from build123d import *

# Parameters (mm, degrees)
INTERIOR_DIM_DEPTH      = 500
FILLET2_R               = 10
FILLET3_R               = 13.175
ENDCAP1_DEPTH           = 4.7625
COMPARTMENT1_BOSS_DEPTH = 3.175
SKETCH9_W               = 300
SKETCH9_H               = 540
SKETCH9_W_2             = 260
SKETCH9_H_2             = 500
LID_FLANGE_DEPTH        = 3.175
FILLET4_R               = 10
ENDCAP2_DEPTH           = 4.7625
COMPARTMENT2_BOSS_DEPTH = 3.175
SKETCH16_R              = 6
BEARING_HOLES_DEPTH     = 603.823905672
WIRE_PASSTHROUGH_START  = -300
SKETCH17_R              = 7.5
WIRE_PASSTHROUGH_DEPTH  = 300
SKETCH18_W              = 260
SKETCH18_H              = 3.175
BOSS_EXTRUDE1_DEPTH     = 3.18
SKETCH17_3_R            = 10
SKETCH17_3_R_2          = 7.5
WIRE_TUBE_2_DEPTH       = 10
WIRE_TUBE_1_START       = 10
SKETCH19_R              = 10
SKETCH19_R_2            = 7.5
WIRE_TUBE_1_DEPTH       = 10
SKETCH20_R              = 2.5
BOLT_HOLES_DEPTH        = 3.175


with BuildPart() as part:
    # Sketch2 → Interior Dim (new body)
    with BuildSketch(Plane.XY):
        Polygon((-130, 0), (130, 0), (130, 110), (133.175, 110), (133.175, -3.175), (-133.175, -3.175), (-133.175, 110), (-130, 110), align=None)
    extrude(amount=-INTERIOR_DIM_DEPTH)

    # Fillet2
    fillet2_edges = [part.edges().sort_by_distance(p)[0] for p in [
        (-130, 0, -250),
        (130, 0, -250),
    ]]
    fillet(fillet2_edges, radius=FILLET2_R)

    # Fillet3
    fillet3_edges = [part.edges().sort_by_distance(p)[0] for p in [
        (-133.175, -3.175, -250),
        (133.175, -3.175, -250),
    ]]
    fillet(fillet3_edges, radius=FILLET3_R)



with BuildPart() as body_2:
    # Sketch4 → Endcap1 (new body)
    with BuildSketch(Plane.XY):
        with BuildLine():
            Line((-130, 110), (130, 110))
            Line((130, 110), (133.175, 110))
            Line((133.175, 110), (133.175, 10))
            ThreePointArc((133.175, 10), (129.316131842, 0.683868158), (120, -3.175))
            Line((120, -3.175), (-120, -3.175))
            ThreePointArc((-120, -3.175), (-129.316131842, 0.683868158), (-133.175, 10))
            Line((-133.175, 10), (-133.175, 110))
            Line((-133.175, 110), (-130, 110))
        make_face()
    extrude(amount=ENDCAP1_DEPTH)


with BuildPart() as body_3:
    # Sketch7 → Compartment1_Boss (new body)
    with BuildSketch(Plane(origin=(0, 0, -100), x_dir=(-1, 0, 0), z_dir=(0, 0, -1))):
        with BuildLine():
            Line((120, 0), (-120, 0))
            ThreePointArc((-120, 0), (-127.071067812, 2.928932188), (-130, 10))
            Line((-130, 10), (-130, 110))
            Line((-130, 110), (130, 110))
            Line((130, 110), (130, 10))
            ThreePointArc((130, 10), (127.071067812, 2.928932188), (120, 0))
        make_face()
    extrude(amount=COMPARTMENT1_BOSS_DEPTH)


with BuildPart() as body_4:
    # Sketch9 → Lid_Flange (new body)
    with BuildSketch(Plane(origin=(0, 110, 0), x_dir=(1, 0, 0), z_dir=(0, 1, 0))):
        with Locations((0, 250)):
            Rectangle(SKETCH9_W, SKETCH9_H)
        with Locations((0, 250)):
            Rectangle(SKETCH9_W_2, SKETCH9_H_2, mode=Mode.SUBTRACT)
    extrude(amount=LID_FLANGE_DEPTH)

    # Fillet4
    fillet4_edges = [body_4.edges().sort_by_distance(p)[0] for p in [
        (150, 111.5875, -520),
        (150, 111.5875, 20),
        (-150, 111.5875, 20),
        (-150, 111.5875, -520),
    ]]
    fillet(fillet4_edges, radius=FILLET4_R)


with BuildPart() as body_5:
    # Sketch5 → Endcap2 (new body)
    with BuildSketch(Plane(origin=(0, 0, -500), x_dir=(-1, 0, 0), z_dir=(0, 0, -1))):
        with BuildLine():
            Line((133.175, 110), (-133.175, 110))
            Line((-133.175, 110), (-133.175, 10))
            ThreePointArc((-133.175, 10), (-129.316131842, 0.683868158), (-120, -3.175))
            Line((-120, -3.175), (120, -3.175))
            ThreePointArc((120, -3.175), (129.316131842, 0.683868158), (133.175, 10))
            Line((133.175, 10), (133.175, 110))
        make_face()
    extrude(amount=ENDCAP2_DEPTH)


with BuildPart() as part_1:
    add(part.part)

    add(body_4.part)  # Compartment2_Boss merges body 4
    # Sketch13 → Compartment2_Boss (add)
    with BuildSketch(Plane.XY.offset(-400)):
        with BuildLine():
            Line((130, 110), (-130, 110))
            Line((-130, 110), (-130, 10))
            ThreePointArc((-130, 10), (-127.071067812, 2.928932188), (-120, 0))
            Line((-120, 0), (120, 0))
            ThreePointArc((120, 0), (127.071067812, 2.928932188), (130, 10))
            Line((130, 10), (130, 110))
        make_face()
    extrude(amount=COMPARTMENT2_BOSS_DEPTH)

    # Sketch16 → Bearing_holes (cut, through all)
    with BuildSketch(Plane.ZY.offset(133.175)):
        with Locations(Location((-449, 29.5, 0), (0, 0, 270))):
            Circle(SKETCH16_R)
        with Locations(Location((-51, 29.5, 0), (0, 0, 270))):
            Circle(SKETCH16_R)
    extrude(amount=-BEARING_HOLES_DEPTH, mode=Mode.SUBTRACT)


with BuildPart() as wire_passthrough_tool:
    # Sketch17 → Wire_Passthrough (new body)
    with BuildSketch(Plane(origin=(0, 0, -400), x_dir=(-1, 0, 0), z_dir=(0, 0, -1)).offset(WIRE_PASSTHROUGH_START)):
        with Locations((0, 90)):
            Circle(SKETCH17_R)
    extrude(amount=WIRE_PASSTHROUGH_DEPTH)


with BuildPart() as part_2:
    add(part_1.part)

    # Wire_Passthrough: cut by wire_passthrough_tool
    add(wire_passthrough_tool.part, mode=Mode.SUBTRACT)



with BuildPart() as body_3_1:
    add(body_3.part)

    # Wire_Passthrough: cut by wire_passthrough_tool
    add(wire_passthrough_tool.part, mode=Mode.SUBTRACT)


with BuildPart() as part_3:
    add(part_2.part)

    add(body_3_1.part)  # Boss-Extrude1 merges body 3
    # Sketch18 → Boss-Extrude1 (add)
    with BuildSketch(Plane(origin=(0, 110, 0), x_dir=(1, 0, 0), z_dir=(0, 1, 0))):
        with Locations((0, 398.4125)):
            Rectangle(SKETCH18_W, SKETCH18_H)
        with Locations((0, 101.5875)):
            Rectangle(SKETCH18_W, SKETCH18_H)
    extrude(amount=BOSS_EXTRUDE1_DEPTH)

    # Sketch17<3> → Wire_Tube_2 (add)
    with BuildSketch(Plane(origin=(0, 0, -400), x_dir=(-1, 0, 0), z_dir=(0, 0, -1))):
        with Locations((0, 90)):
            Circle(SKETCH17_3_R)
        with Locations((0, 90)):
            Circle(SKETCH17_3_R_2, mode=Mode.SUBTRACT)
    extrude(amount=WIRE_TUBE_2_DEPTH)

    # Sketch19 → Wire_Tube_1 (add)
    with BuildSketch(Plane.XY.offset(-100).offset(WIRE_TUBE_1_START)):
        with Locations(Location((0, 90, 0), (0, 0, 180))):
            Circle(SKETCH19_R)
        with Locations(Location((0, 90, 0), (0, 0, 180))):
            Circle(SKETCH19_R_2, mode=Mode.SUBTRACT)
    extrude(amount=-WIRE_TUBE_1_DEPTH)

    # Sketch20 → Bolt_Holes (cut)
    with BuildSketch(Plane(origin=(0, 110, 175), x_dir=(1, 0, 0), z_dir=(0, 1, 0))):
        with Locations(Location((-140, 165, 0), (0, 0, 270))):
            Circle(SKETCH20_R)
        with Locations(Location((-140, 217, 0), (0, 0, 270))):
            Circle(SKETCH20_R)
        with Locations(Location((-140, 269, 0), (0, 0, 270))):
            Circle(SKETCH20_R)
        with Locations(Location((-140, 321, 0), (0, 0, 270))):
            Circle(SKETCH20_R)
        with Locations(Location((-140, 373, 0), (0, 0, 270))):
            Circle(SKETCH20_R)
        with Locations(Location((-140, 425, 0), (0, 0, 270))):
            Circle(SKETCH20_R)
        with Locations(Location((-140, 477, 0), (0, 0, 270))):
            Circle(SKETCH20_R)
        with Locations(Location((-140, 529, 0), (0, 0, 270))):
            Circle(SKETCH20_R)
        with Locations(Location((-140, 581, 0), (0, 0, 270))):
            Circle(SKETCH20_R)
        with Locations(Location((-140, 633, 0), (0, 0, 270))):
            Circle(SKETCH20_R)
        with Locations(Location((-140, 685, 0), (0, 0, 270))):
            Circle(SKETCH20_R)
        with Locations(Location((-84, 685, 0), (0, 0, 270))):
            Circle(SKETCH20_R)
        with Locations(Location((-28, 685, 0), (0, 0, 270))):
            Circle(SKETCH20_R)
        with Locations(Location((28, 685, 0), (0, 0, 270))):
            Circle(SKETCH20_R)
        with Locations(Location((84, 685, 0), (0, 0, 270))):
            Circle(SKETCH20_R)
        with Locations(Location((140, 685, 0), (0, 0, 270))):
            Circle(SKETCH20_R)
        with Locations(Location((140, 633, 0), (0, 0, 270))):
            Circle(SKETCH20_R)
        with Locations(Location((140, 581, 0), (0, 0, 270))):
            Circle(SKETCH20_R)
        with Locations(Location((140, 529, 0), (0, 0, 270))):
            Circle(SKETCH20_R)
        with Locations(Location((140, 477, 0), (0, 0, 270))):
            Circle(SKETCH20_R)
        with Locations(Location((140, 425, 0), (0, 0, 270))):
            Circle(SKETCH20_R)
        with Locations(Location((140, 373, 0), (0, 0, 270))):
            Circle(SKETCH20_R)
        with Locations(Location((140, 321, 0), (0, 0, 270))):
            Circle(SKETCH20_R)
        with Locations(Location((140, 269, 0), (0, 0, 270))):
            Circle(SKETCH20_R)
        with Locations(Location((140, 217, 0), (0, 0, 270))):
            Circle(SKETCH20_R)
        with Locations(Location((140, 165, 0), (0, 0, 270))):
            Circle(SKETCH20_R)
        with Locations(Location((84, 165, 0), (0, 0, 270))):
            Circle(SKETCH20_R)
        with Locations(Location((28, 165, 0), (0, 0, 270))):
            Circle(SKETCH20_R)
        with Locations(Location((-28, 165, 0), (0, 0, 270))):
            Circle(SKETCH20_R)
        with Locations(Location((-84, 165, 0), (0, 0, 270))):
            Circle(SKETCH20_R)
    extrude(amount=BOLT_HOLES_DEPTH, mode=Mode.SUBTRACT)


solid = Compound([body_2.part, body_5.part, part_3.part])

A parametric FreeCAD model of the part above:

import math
import FreeCAD as App
import Part
import Sketcher


def edges_at(feature, points):
    """Names of the edges that pass closest to the given points."""
    edges = feature.Shape.Edges
    near = lambda p: min(range(len(edges)), key=lambda i: edges[i].distToShape(Part.Vertex(*p))[0])
    return sorted({f"Edge{near(p) + 1}" for p in points})


def add_polygon(sketch, points):
    """Adds a closed chain of lines whose ends are joined by coincident constraints."""
    first, n = sketch.GeometryCount, len(points)
    for a, b in zip(points, points[1:] + points[:1]):
        sketch.addGeometry(Part.LineSegment(App.Vector(*a, 0), App.Vector(*b, 0)), False)
    for i in range(n):
        sketch.addConstraint(Sketcher.Constraint("Coincident", first + i, 2, first + (i + 1) % n, 1))

doc = App.newDocument("Part")
body = doc.addObject("PartDesign::Body", "Body")

# Sketch on XY plane
sketch1 = doc.addObject("Sketcher::SketchObject", "Sketch")
body.addObject(sketch1)
sketch1.AttachmentSupport = (doc.XY_Plane, [""])
sketch1.MapMode = "FlatFace"
add_polygon(sketch1, [(130, 0), (-130, 0), (-130, 110), (-133.175, 110), (-133.175, -3.175), (133.175, -3.175), (133.175, 110), (130, 110)])  # lines 0-7
sketch1.addConstraint([
    Sketcher.Constraint("Horizontal", 0),
    Sketcher.Constraint("Vertical", 1),
    Sketcher.Constraint("Horizontal", 2),
    Sketcher.Constraint("Vertical", 3),
    Sketcher.Constraint("Horizontal", 4),
    Sketcher.Constraint("Vertical", 5),
    Sketcher.Constraint("Horizontal", 6),
    Sketcher.Constraint("Vertical", 7),
    Sketcher.Constraint("Symmetric", 0, 2, 7, 2, -1, 1),
    Sketcher.Constraint("Symmetric", 2, 2, 5, 2, -2),
    Sketcher.Constraint("DistanceX", 0, 2, 0, 1, 260.0),
    Sketcher.Constraint("DistanceY", 1, 1, 1, 2, 110.0),
    Sketcher.Constraint("DistanceX", 4, 1, 4, 2, 266.35),
    Sketcher.Constraint("DistanceY", 3, 2, 3, 1, 113.175),
])
pad1 = doc.addObject("PartDesign::Pad", "Pad")
body.addObject(pad1)
pad1.Profile = sketch1
pad1.Length = 500
pad1.Reversed = True
doc.recompute()

fillet = doc.addObject("PartDesign::Fillet", "Fillet")
body.addObject(fillet)
fillet.Base = (pad1, edges_at(pad1, [(-130, 0, -250), (130, 0, -250)]))
fillet.Radius = 10
doc.recompute()

fillet2 = doc.addObject("PartDesign::Fillet", "Fillet001")
body.addObject(fillet2)
fillet2.Base = (fillet, edges_at(fillet, [(-133.175, -3.175, -250), (133.175, -3.175, -250)]))
fillet2.Radius = 13.175
body2 = doc.addObject("PartDesign::Body", "Body001")

# Sketch on XY plane
sketch2 = doc.addObject("Sketcher::SketchObject", "Sketch001")
body2.addObject(sketch2)
sketch2.AttachmentSupport = (doc.getObject("XY_Plane001"), [""])
sketch2.MapMode = "FlatFace"
sketch2.addGeometry([
    Part.LineSegment(App.Vector(133.175, 10, 0), App.Vector(133.175, 110, 0)),  # 0
    Part.LineSegment(App.Vector(133.175, 110, 0), App.Vector(-133.175, 110, 0)),  # 1
    Part.LineSegment(App.Vector(-133.175, 110, 0), App.Vector(-133.175, 10, 0)),  # 2
    Part.ArcOfCircle(Part.Circle(App.Vector(-120, 10, 0), App.Vector(0, 0, 1), 13.175), math.radians(180), math.radians(270)),  # 3
    Part.LineSegment(App.Vector(-120, -3.175, 0), App.Vector(120, -3.175, 0)),  # 4
    Part.ArcOfCircle(Part.Circle(App.Vector(120, 10, 0), App.Vector(0, 0, 1), 13.175), math.radians(-90), math.radians(0)),  # 5
], False)
sketch2.addConstraint([
    Sketcher.Constraint("Coincident", 0, 2, 1, 1),
    Sketcher.Constraint("Coincident", 1, 2, 2, 1),
    Sketcher.Constraint("Tangent", 2, 2, 3, 1),
    Sketcher.Constraint("Tangent", 3, 2, 4, 1),
    Sketcher.Constraint("Tangent", 4, 2, 5, 1),
    Sketcher.Constraint("Tangent", 5, 2, 0, 1),
    Sketcher.Constraint("Vertical", 0),
    Sketcher.Constraint("Horizontal", 1),
    Sketcher.Constraint("Vertical", 2),
    Sketcher.Constraint("Horizontal", 4),
    Sketcher.Constraint("Equal", 3, 5),
    Sketcher.Constraint("DistanceX", 4, 1, 4, 2, 240.0),
    Sketcher.Constraint("DistanceY", 0, 1, 0, 2, 100.0),
    Sketcher.Constraint("DistanceX", 3, 3, -1, 1, 120.0),
    Sketcher.Constraint("DistanceY", -1, 1, 3, 3, 10.0),
    Sketcher.Constraint("Radius", 3, 13.175),
])
pad2 = doc.addObject("PartDesign::Pad", "Pad001")
body2.addObject(pad2)
pad2.Profile = sketch2
pad2.Length = 4.7625
body3 = doc.addObject("PartDesign::Body", "Body002")

# Sketch on XY plane
sketch3 = doc.addObject("Sketcher::SketchObject", "Sketch002")
body3.addObject(sketch3)
sketch3.AttachmentSupport = (doc.getObject("XY_Plane002"), [""])
sketch3.MapMode = "FlatFace"
sketch3.AttachmentOffset = App.Placement(App.Vector(0, 0, -100), App.Rotation())
sketch3.addGeometry([
    Part.LineSegment(App.Vector(120, 0, 0), App.Vector(-120, 0, 0)),  # 0
    Part.ArcOfCircle(Part.Circle(App.Vector(-120, 10, 0), App.Vector(0, 0, 1), 10), math.radians(180), math.radians(270)),  # 1
    Part.LineSegment(App.Vector(-130, 10, 0), App.Vector(-130, 110, 0)),  # 2
    Part.LineSegment(App.Vector(-130, 110, 0), App.Vector(130, 110, 0)),  # 3
    Part.LineSegment(App.Vector(130, 110, 0), App.Vector(130, 10, 0)),  # 4
    Part.ArcOfCircle(Part.Circle(App.Vector(120, 10, 0), App.Vector(0, 0, 1), 10), math.radians(-90), math.radians(0)),  # 5
], False)
sketch3.addConstraint([
    Sketcher.Constraint("Tangent", 0, 2, 1, 2),
    Sketcher.Constraint("Tangent", 1, 1, 2, 1),
    Sketcher.Constraint("Coincident", 2, 2, 3, 1),
    Sketcher.Constraint("Coincident", 3, 2, 4, 1),
    Sketcher.Constraint("Tangent", 4, 2, 5, 2),
    Sketcher.Constraint("Tangent", 5, 1, 0, 1),
    Sketcher.Constraint("Horizontal", 0),
    Sketcher.Constraint("Vertical", 2),
    Sketcher.Constraint("Horizontal", 3),
    Sketcher.Constraint("Vertical", 4),
    Sketcher.Constraint("Equal", 1, 5),
    Sketcher.Constraint("Symmetric", 0, 2, 5, 1, -1, 1),
    Sketcher.Constraint("Radius", 1, 10.0),
    Sketcher.Constraint("DistanceX", 0, 2, 0, 1, 240.0),
    Sketcher.Constraint("DistanceY", 2, 1, 2, 2, 100.0),
])
pad3 = doc.addObject("PartDesign::Pad", "Pad002")
body3.addObject(pad3)
pad3.Profile = sketch3
pad3.Length = 3.175
pad3.Reversed = True
body4 = doc.addObject("PartDesign::Body", "Body003")

# Sketch on XZ plane
sketch4 = doc.addObject("Sketcher::SketchObject", "Sketch003")
body4.addObject(sketch4)
sketch4.AttachmentSupport = (doc.getObject("XZ_Plane003"), [""])
sketch4.MapMode = "FlatFace"
sketch4.AttachmentOffset = App.Placement(App.Vector(0, 0, -110), App.Rotation())
add_polygon(sketch4, [(-150, -520), (-150, 20), (150, 20), (150, -520)])  # lines 0-3
add_polygon(sketch4, [(130, 0), (-130, 0), (-130, -500), (130, -500)])  # lines 4-7
sketch4.addConstraint([
    Sketcher.Constraint("Vertical", 0),
    Sketcher.Constraint("Horizontal", 1),
    Sketcher.Constraint("Vertical", 2),
    Sketcher.Constraint("Horizontal", 3),
    Sketcher.Constraint("Horizontal", 4),
    Sketcher.Constraint("Vertical", 5),
    Sketcher.Constraint("Horizontal", 6),
    Sketcher.Constraint("Vertical", 7),
    Sketcher.Constraint("Symmetric", 4, 2, 7, 2, -1, 1),
    Sketcher.Constraint("DistanceX", 1, 1, 1, 2, 300.0),
    Sketcher.Constraint("DistanceX", 4, 2, 4, 1, 260.0),
    Sketcher.Constraint("DistanceY", 0, 1, 0, 2, 540.0),
    Sketcher.Constraint("DistanceY", 5, 2, 5, 1, 500.0),
    Sketcher.Constraint("DistanceX", 0, 2, -1, 1, 150.0),
    Sketcher.Constraint("DistanceY", -1, 1, 0, 2, 20.0),
])
pad4 = doc.addObject("PartDesign::Pad", "Pad003")
body4.addObject(pad4)
pad4.Profile = sketch4
pad4.Length = 3.175
pad4.Reversed = True
doc.recompute()

fillet3 = doc.addObject("PartDesign::Fillet", "Fillet002")
body4.addObject(fillet3)
fillet3.Base = (pad4, edges_at(pad4, [
    (150, 111.588, -520),
    (150, 111.588, 20),
    (-150, 111.588, 20),
    (-150, 111.588, -520),
]))
fillet3.Radius = 10
body5 = doc.addObject("PartDesign::Body", "Body004")

# Sketch on XY plane
sketch5 = doc.addObject("Sketcher::SketchObject", "Sketch004")
body5.addObject(sketch5)
sketch5.AttachmentSupport = (doc.getObject("XY_Plane004"), [""])
sketch5.MapMode = "FlatFace"
sketch5.AttachmentOffset = App.Placement(App.Vector(0, 0, -500), App.Rotation())
sketch5.addGeometry([
    Part.LineSegment(App.Vector(-133.175, 110, 0), App.Vector(133.175, 110, 0)),  # 0
    Part.LineSegment(App.Vector(133.175, 110, 0), App.Vector(133.175, 10, 0)),  # 1
    Part.ArcOfCircle(Part.Circle(App.Vector(120, 10, 0), App.Vector(0, 0, 1), 13.175), math.radians(-90), math.radians(0)),  # 2
    Part.LineSegment(App.Vector(120, -3.175, 0), App.Vector(-120, -3.175, 0)),  # 3
    Part.ArcOfCircle(Part.Circle(App.Vector(-120, 10, 0), App.Vector(0, 0, 1), 13.175), math.radians(180), math.radians(270)),  # 4
    Part.LineSegment(App.Vector(-133.175, 10, 0), App.Vector(-133.175, 110, 0)),  # 5
], False)
sketch5.addConstraint([
    Sketcher.Constraint("Coincident", 0, 2, 1, 1),
    Sketcher.Constraint("Tangent", 1, 2, 2, 2),
    Sketcher.Constraint("Tangent", 2, 1, 3, 1),
    Sketcher.Constraint("Tangent", 3, 2, 4, 2),
    Sketcher.Constraint("Tangent", 4, 1, 5, 1),
    Sketcher.Constraint("Coincident", 5, 2, 0, 1),
    Sketcher.Constraint("Horizontal", 0),
    Sketcher.Constraint("Vertical", 1),
    Sketcher.Constraint("Horizontal", 3),
    Sketcher.Constraint("Vertical", 5),
    Sketcher.Constraint("Equal", 2, 4),
    Sketcher.Constraint("DistanceX", 3, 2, 3, 1, 240.0),
    Sketcher.Constraint("DistanceY", 1, 2, 1, 1, 100.0),
    Sketcher.Constraint("DistanceX", -1, 1, 2, 3, 120.0),
    Sketcher.Constraint("DistanceY", -1, 1, 2, 3, 10.0),
    Sketcher.Constraint("Radius", 2, 13.175),
])
pad5 = doc.addObject("PartDesign::Pad", "Pad004")
body5.addObject(pad5)
pad5.Profile = sketch5
pad5.Length = 4.7625
pad5.Reversed = True
doc.recompute()

boolean = doc.addObject("PartDesign::Boolean", "Boolean")
body.addObject(boolean)
boolean.Type = "Fuse"
boolean.addObjects([body4])

# Sketch on XY plane
sketch6 = doc.addObject("Sketcher::SketchObject", "Sketch005")
body.addObject(sketch6)
sketch6.AttachmentSupport = (doc.XY_Plane, [""])
sketch6.MapMode = "FlatFace"
sketch6.AttachmentOffset = App.Placement(App.Vector(0, 0, -400), App.Rotation())
sketch6.addGeometry([
    Part.LineSegment(App.Vector(130, 110, 0), App.Vector(-130, 110, 0)),  # 0
    Part.LineSegment(App.Vector(-130, 110, 0), App.Vector(-130, 10, 0)),  # 1
    Part.ArcOfCircle(Part.Circle(App.Vector(-120, 10, 0), App.Vector(0, 0, 1), 10), math.radians(180), math.radians(270)),  # 2
    Part.LineSegment(App.Vector(-120, 0, 0), App.Vector(120, 0, 0)),  # 3
    Part.ArcOfCircle(Part.Circle(App.Vector(120, 10, 0), App.Vector(0, 0, 1), 10), math.radians(-90), math.radians(0)),  # 4
    Part.LineSegment(App.Vector(130, 10, 0), App.Vector(130, 110, 0)),  # 5
], False)
sketch6.addConstraint([
    Sketcher.Constraint("Coincident", 0, 2, 1, 1),
    Sketcher.Constraint("Tangent", 1, 2, 2, 1),
    Sketcher.Constraint("Tangent", 2, 2, 3, 1),
    Sketcher.Constraint("Tangent", 3, 2, 4, 1),
    Sketcher.Constraint("Tangent", 4, 2, 5, 1),
    Sketcher.Constraint("Coincident", 5, 2, 0, 1),
    Sketcher.Constraint("Horizontal", 0),
    Sketcher.Constraint("Vertical", 1),
    Sketcher.Constraint("Horizontal", 3),
    Sketcher.Constraint("Vertical", 5),
    Sketcher.Constraint("Equal", 2, 4),
    Sketcher.Constraint("Symmetric", 2, 2, 3, 2, -1, 1),
    Sketcher.Constraint("Radius", 2, 10.0),
    Sketcher.Constraint("DistanceX", 0, 2, 0, 1, 260.0),
    Sketcher.Constraint("DistanceY", 1, 2, 1, 1, 100.0),
])
pad6 = doc.addObject("PartDesign::Pad", "Pad005")
body.addObject(pad6)
pad6.Profile = sketch6
pad6.Length = 3.175

# Sketch on YZ plane
sketch7 = doc.addObject("Sketcher::SketchObject", "Sketch006")
body.addObject(sketch7)
sketch7.AttachmentSupport = (doc.YZ_Plane, [""])
sketch7.MapMode = "FlatFace"
sketch7.AttachmentOffset = App.Placement(App.Vector(0, 0, -133.175), App.Rotation())
sketch7.addGeometry([
    Part.Circle(App.Vector(29.5, -449, 0), App.Vector(0, 0, 1), 6),
    Part.Circle(App.Vector(29.5, -51, 0), App.Vector(0, 0, 1), 6),
], False)
sketch7.addConstraint([
    Sketcher.Constraint("Equal", 0, 1),
    Sketcher.Constraint("Vertical", 0, 3, 1, 3),
    Sketcher.Constraint("Diameter", 0, 12.0),
    Sketcher.Constraint("DistanceY", 0, 3, -1, 1, 449.0),
    Sketcher.Constraint("DistanceY", 1, 3, -1, 1, 51.0),
    Sketcher.Constraint("DistanceX", -1, 1, 0, 3, 29.5),
])
pocket1 = doc.addObject("PartDesign::Pocket", "Pocket")
body.addObject(pocket1)
pocket1.Profile = sketch7
pocket1.Type = "ThroughAll"
pocket1.Reversed = True
body6 = doc.addObject("PartDesign::Body", "Body005")

# Sketch on XY plane
sketch8 = doc.addObject("Sketcher::SketchObject", "Sketch007")
body6.addObject(sketch8)
sketch8.AttachmentSupport = (doc.getObject("XY_Plane005"), [""])
sketch8.MapMode = "FlatFace"
sketch8.AttachmentOffset = App.Placement(App.Vector(0, 0, -100), App.Rotation())
sketch8.addGeometry(Part.Circle(App.Vector(0, 90, 0), App.Vector(0, 0, 1), 7.5), False)
sketch8.addConstraint([
    Sketcher.Constraint("PointOnObject", 0, 3, -2),
    Sketcher.Constraint("Diameter", 0, 15.0),
    Sketcher.Constraint("DistanceY", -1, 1, 0, 3, 90.0),
])
pad7 = doc.addObject("PartDesign::Pad", "Pad006")
body6.addObject(pad7)
pad7.Profile = sketch8
pad7.Length = 300
pad7.Reversed = True
doc.recompute()

body7 = doc.addObject("PartDesign::Body", "Body006")
body7.BaseFeature = body6
boolean2 = doc.addObject("PartDesign::Boolean", "Boolean001")
body.addObject(boolean2)
boolean2.Type = "Cut"
boolean2.addObjects([body7])
doc.recompute()

boolean3 = doc.addObject("PartDesign::Boolean", "Boolean002")
body3.addObject(boolean3)
boolean3.Type = "Cut"
boolean3.addObjects([body6])
doc.recompute()

boolean4 = doc.addObject("PartDesign::Boolean", "Boolean003")
body.addObject(boolean4)
boolean4.Type = "Fuse"
boolean4.addObjects([body3])

# Sketch on XZ plane
sketch9 = doc.addObject("Sketcher::SketchObject", "Sketch008")
body.addObject(sketch9)
sketch9.AttachmentSupport = (doc.XZ_Plane, [""])
sketch9.MapMode = "FlatFace"
sketch9.AttachmentOffset = App.Placement(App.Vector(0, 0, -110), App.Rotation())
add_polygon(sketch9, [(-130, -400), (-130, -396.825), (130, -396.825), (130, -400)])  # lines 0-3
add_polygon(sketch9, [(-130, -103.175), (-130, -100), (130, -100), (130, -103.175)])  # lines 4-7
sketch9.addConstraint([
    Sketcher.Constraint("Vertical", 0),
    Sketcher.Constraint("Horizontal", 1),
    Sketcher.Constraint("Vertical", 2),
    Sketcher.Constraint("Horizontal", 3),
    Sketcher.Constraint("Vertical", 4),
    Sketcher.Constraint("Horizontal", 5),
    Sketcher.Constraint("Vertical", 6),
    Sketcher.Constraint("Horizontal", 7),
    Sketcher.Constraint("Vertical", 3, 2, 4, 2),
    Sketcher.Constraint("Vertical", 2, 2, 5, 2),
    Sketcher.Constraint("Equal", 2, 4),
    Sketcher.Constraint("DistanceX", 1, 1, 1, 2, 260.0),
    Sketcher.Constraint("DistanceX", 0, 2, -1, 1, 130.0),
    Sketcher.Constraint("DistanceY", 2, 2, -1, 1, 400.0),
    Sketcher.Constraint("DistanceY", 4, 2, -1, 1, 100.0),
    Sketcher.Constraint("DistanceY", 0, 1, 0, 2, 3.175),
])
pad8 = doc.addObject("PartDesign::Pad", "Pad007")
body.addObject(pad8)
pad8.Profile = sketch9
pad8.Length = 3.18
pad8.Reversed = True

# Sketch on XY plane
sketch10 = doc.addObject("Sketcher::SketchObject", "Sketch009")
body.addObject(sketch10)
sketch10.AttachmentSupport = (doc.XY_Plane, [""])
sketch10.MapMode = "FlatFace"
sketch10.AttachmentOffset = App.Placement(App.Vector(0, 0, -400), App.Rotation())
sketch10.addGeometry([
    Part.Circle(App.Vector(0, 90, 0), App.Vector(0, 0, 1), 10),
    Part.Circle(App.Vector(0, 90, 0), App.Vector(0, 0, 1), 7.5),
], False)
sketch10.addConstraint([
    Sketcher.Constraint("Coincident", 1, 3, 0, 3),
    Sketcher.Constraint("PointOnObject", 0, 3, -2),
    Sketcher.Constraint("Diameter", 0, 20.0),
    Sketcher.Constraint("Diameter", 1, 15.0),
    Sketcher.Constraint("DistanceY", -1, 1, 0, 3, 90.0),
])
pad9 = doc.addObject("PartDesign::Pad", "Pad008")
body.addObject(pad9)
pad9.Profile = sketch10
pad9.Length = 10
pad9.Reversed = True

# Sketch on XY plane
sketch11 = doc.addObject("Sketcher::SketchObject", "Sketch010")
body.addObject(sketch11)
sketch11.AttachmentSupport = (doc.XY_Plane, [""])
sketch11.MapMode = "FlatFace"
sketch11.AttachmentOffset = App.Placement(App.Vector(0, 0, -90), App.Rotation())
sketch11.addGeometry([
    Part.Circle(App.Vector(0, 90, 0), App.Vector(0, 0, 1), 10),
    Part.Circle(App.Vector(0, 90, 0), App.Vector(0, 0, 1), 7.5),
], False)
sketch11.addConstraint([
    Sketcher.Constraint("Coincident", 1, 3, 0, 3),
    Sketcher.Constraint("PointOnObject", 0, 3, -2),
    Sketcher.Constraint("Diameter", 0, 20.0),
    Sketcher.Constraint("Diameter", 1, 15.0),
    Sketcher.Constraint("DistanceY", -1, 1, 0, 3, 90.0),
])
pad10 = doc.addObject("PartDesign::Pad", "Pad009")
body.addObject(pad10)
pad10.Profile = sketch11
pad10.Length = 10
pad10.Reversed = True

# Sketch on XZ plane
sketch12 = doc.addObject("Sketcher::SketchObject", "Sketch011")
body.addObject(sketch12)
sketch12.AttachmentSupport = (doc.XZ_Plane, [""])
sketch12.MapMode = "FlatFace"
sketch12.AttachmentOffset = App.Placement(App.Vector(0, 0, -110), App.Rotation())
sketch12.addGeometry([
    Part.Circle(App.Vector(-140, 10, 0), App.Vector(0, 0, 1), 2.5),  # 0
    Part.Circle(App.Vector(-140, -42, 0), App.Vector(0, 0, 1), 2.5),  # 1
    Part.Circle(App.Vector(-140, -94, 0), App.Vector(0, 0, 1), 2.5),  # 2
    Part.Circle(App.Vector(-140, -146, 0), App.Vector(0, 0, 1), 2.5),  # 3
    Part.Circle(App.Vector(-140, -198, 0), App.Vector(0, 0, 1), 2.5),  # 4
    Part.Circle(App.Vector(-140, -250, 0), App.Vector(0, 0, 1), 2.5),  # 5
    Part.Circle(App.Vector(-140, -302, 0), App.Vector(0, 0, 1), 2.5),  # 6
    Part.Circle(App.Vector(-140, -354, 0), App.Vector(0, 0, 1), 2.5),  # 7
    Part.Circle(App.Vector(-140, -406, 0), App.Vector(0, 0, 1), 2.5),  # 8
    Part.Circle(App.Vector(-140, -458, 0), App.Vector(0, 0, 1), 2.5),  # 9
    Part.Circle(App.Vector(-140, -510, 0), App.Vector(0, 0, 1), 2.5),  # 10
    Part.Circle(App.Vector(-84, -510, 0), App.Vector(0, 0, 1), 2.5),  # 11
    Part.Circle(App.Vector(-28, -510, 0), App.Vector(0, 0, 1), 2.5),  # 12
    Part.Circle(App.Vector(28, -510, 0), App.Vector(0, 0, 1), 2.5),  # 13
    Part.Circle(App.Vector(84, -510, 0), App.Vector(0, 0, 1), 2.5),  # 14
    Part.Circle(App.Vector(140, -510, 0), App.Vector(0, 0, 1), 2.5),  # 15
    Part.Circle(App.Vector(140, -458, 0), App.Vector(0, 0, 1), 2.5),  # 16
    Part.Circle(App.Vector(140, -406, 0), App.Vector(0, 0, 1), 2.5),  # 17
    Part.Circle(App.Vector(140, -354, 0), App.Vector(0, 0, 1), 2.5),  # 18
    Part.Circle(App.Vector(140, -302, 0), App.Vector(0, 0, 1), 2.5),  # 19
    Part.Circle(App.Vector(140, -250, 0), App.Vector(0, 0, 1), 2.5),  # 20
    Part.Circle(App.Vector(140, -198, 0), App.Vector(0, 0, 1), 2.5),  # 21
    Part.Circle(App.Vector(140, -146, 0), App.Vector(0, 0, 1), 2.5),  # 22
    Part.Circle(App.Vector(140, -94, 0), App.Vector(0, 0, 1), 2.5),  # 23
    Part.Circle(App.Vector(140, -42, 0), App.Vector(0, 0, 1), 2.5),  # 24
    Part.Circle(App.Vector(140, 10, 0), App.Vector(0, 0, 1), 2.5),  # 25
    Part.Circle(App.Vector(84, 10, 0), App.Vector(0, 0, 1), 2.5),  # 26
    Part.Circle(App.Vector(28, 10, 0), App.Vector(0, 0, 1), 2.5),  # 27
    Part.Circle(App.Vector(-28, 10, 0), App.Vector(0, 0, 1), 2.5),  # 28
    Part.Circle(App.Vector(-84, 10, 0), App.Vector(0, 0, 1), 2.5),  # 29
], False)
sketch12.addConstraint([
    Sketcher.Constraint("Equal", 0, 1),
    Sketcher.Constraint("Equal", 1, 2),
    Sketcher.Constraint("Equal", 2, 3),
    Sketcher.Constraint("Equal", 3, 4),
    Sketcher.Constraint("Equal", 4, 5),
    Sketcher.Constraint("Equal", 5, 6),
    Sketcher.Constraint("Equal", 6, 7),
    Sketcher.Constraint("Equal", 7, 8),
    Sketcher.Constraint("Equal", 8, 9),
    Sketcher.Constraint("Equal", 9, 10),
    Sketcher.Constraint("Equal", 10, 11),
    Sketcher.Constraint("Equal", 11, 12),
    Sketcher.Constraint("Equal", 12, 13),
    Sketcher.Constraint("Equal", 13, 14),
    Sketcher.Constraint("Equal", 14, 15),
    Sketcher.Constraint("Equal", 15, 16),
    Sketcher.Constraint("Equal", 16, 17),
    Sketcher.Constraint("Equal", 17, 18),
    Sketcher.Constraint("Equal", 18, 19),
    Sketcher.Constraint("Equal", 19, 20),
    Sketcher.Constraint("Equal", 20, 21),
    Sketcher.Constraint("Equal", 21, 22),
    Sketcher.Constraint("Equal", 22, 23),
    Sketcher.Constraint("Equal", 23, 24),
    Sketcher.Constraint("Equal", 24, 25),
    Sketcher.Constraint("Equal", 25, 26),
    Sketcher.Constraint("Equal", 26, 27),
    Sketcher.Constraint("Equal", 27, 28),
    Sketcher.Constraint("Equal", 28, 29),
    Sketcher.Constraint("Symmetric", 12, 3, 13, 3, -2),
    Sketcher.Constraint("Symmetric", 11, 3, 14, 3, -2),
    Sketcher.Constraint("Symmetric", 10, 3, 15, 3, -2),
    Sketcher.Constraint("Symmetric", 9, 3, 16, 3, -2),
    Sketcher.Constraint("Symmetric", 8, 3, 17, 3, -2),
    Sketcher.Constraint("Symmetric", 7, 3, 18, 3, -2),
    Sketcher.Constraint("Symmetric", 6, 3, 19, 3, -2),
    Sketcher.Constraint("Symmetric", 5, 3, 20, 3, -2),
    Sketcher.Constraint("Symmetric", 4, 3, 21, 3, -2),
    Sketcher.Constraint("Symmetric", 3, 3, 22, 3, -2),
    Sketcher.Constraint("Symmetric", 2, 3, 23, 3, -2),
    Sketcher.Constraint("Symmetric", 1, 3, 24, 3, -2),
    Sketcher.Constraint("Symmetric", 0, 3, 25, 3, -2),
    Sketcher.Constraint("Symmetric", 27, 3, 28, 3, -2),
    Sketcher.Constraint("Symmetric", 26, 3, 29, 3, -2),
    Sketcher.Constraint("Horizontal", 10, 3, 11, 3),
    Sketcher.Constraint("Horizontal", 11, 3, 12, 3),
    Sketcher.Constraint("Horizontal", 25, 3, 26, 3),
    Sketcher.Constraint("Horizontal", 26, 3, 27, 3),
    Sketcher.Constraint("Vertical", 0, 3, 1, 3),
    Sketcher.Constraint("Vertical", 1, 3, 2, 3),
    Sketcher.Constraint("Vertical", 2, 3, 3, 3),
    Sketcher.Constraint("Vertical", 3, 3, 4, 3),
    Sketcher.Constraint("Vertical", 4, 3, 5, 3),
    Sketcher.Constraint("Vertical", 5, 3, 6, 3),
    Sketcher.Constraint("Vertical", 6, 3, 7, 3),
    Sketcher.Constraint("Vertical", 7, 3, 8, 3),
    Sketcher.Constraint("Vertical", 8, 3, 9, 3),
    Sketcher.Constraint("Vertical", 9, 3, 10, 3),
    Sketcher.Constraint("Vertical", 14, 3, 26, 3),
    Sketcher.Constraint("Vertical", 13, 3, 27, 3),
    Sketcher.Constraint("Diameter", 0, 5.0),
    Sketcher.Constraint("DistanceX", 0, 3, -1, 1, 140.0),
    Sketcher.Constraint("DistanceY", -1, 1, 0, 3, 10.0),
    Sketcher.Constraint("DistanceY", 1, 3, -1, 1, 42.0),
    Sketcher.Constraint("DistanceY", 2, 3, -1, 1, 94.0),
    Sketcher.Constraint("DistanceY", 3, 3, -1, 1, 146.0),
    Sketcher.Constraint("DistanceY", 4, 3, -1, 1, 198.0),
    Sketcher.Constraint("DistanceY", 5, 3, -1, 1, 250.0),
    Sketcher.Constraint("DistanceY", 6, 3, -1, 1, 302.0),
    Sketcher.Constraint("DistanceY", 7, 3, -1, 1, 354.0),
    Sketcher.Constraint("DistanceY", 8, 3, -1, 1, 406.0),
    Sketcher.Constraint("DistanceY", 9, 3, -1, 1, 458.0),
    Sketcher.Constraint("DistanceY", 10, 3, -1, 1, 510.0),
    Sketcher.Constraint("DistanceX", 11, 3, -1, 1, 84.0),
    Sketcher.Constraint("DistanceX", 12, 3, -1, 1, 28.0),
])
pocket2 = doc.addObject("PartDesign::Pocket", "Pocket001")
body.addObject(pocket2)
pocket2.Profile = sketch12
pocket2.Length = 3.175

doc.recompute()
